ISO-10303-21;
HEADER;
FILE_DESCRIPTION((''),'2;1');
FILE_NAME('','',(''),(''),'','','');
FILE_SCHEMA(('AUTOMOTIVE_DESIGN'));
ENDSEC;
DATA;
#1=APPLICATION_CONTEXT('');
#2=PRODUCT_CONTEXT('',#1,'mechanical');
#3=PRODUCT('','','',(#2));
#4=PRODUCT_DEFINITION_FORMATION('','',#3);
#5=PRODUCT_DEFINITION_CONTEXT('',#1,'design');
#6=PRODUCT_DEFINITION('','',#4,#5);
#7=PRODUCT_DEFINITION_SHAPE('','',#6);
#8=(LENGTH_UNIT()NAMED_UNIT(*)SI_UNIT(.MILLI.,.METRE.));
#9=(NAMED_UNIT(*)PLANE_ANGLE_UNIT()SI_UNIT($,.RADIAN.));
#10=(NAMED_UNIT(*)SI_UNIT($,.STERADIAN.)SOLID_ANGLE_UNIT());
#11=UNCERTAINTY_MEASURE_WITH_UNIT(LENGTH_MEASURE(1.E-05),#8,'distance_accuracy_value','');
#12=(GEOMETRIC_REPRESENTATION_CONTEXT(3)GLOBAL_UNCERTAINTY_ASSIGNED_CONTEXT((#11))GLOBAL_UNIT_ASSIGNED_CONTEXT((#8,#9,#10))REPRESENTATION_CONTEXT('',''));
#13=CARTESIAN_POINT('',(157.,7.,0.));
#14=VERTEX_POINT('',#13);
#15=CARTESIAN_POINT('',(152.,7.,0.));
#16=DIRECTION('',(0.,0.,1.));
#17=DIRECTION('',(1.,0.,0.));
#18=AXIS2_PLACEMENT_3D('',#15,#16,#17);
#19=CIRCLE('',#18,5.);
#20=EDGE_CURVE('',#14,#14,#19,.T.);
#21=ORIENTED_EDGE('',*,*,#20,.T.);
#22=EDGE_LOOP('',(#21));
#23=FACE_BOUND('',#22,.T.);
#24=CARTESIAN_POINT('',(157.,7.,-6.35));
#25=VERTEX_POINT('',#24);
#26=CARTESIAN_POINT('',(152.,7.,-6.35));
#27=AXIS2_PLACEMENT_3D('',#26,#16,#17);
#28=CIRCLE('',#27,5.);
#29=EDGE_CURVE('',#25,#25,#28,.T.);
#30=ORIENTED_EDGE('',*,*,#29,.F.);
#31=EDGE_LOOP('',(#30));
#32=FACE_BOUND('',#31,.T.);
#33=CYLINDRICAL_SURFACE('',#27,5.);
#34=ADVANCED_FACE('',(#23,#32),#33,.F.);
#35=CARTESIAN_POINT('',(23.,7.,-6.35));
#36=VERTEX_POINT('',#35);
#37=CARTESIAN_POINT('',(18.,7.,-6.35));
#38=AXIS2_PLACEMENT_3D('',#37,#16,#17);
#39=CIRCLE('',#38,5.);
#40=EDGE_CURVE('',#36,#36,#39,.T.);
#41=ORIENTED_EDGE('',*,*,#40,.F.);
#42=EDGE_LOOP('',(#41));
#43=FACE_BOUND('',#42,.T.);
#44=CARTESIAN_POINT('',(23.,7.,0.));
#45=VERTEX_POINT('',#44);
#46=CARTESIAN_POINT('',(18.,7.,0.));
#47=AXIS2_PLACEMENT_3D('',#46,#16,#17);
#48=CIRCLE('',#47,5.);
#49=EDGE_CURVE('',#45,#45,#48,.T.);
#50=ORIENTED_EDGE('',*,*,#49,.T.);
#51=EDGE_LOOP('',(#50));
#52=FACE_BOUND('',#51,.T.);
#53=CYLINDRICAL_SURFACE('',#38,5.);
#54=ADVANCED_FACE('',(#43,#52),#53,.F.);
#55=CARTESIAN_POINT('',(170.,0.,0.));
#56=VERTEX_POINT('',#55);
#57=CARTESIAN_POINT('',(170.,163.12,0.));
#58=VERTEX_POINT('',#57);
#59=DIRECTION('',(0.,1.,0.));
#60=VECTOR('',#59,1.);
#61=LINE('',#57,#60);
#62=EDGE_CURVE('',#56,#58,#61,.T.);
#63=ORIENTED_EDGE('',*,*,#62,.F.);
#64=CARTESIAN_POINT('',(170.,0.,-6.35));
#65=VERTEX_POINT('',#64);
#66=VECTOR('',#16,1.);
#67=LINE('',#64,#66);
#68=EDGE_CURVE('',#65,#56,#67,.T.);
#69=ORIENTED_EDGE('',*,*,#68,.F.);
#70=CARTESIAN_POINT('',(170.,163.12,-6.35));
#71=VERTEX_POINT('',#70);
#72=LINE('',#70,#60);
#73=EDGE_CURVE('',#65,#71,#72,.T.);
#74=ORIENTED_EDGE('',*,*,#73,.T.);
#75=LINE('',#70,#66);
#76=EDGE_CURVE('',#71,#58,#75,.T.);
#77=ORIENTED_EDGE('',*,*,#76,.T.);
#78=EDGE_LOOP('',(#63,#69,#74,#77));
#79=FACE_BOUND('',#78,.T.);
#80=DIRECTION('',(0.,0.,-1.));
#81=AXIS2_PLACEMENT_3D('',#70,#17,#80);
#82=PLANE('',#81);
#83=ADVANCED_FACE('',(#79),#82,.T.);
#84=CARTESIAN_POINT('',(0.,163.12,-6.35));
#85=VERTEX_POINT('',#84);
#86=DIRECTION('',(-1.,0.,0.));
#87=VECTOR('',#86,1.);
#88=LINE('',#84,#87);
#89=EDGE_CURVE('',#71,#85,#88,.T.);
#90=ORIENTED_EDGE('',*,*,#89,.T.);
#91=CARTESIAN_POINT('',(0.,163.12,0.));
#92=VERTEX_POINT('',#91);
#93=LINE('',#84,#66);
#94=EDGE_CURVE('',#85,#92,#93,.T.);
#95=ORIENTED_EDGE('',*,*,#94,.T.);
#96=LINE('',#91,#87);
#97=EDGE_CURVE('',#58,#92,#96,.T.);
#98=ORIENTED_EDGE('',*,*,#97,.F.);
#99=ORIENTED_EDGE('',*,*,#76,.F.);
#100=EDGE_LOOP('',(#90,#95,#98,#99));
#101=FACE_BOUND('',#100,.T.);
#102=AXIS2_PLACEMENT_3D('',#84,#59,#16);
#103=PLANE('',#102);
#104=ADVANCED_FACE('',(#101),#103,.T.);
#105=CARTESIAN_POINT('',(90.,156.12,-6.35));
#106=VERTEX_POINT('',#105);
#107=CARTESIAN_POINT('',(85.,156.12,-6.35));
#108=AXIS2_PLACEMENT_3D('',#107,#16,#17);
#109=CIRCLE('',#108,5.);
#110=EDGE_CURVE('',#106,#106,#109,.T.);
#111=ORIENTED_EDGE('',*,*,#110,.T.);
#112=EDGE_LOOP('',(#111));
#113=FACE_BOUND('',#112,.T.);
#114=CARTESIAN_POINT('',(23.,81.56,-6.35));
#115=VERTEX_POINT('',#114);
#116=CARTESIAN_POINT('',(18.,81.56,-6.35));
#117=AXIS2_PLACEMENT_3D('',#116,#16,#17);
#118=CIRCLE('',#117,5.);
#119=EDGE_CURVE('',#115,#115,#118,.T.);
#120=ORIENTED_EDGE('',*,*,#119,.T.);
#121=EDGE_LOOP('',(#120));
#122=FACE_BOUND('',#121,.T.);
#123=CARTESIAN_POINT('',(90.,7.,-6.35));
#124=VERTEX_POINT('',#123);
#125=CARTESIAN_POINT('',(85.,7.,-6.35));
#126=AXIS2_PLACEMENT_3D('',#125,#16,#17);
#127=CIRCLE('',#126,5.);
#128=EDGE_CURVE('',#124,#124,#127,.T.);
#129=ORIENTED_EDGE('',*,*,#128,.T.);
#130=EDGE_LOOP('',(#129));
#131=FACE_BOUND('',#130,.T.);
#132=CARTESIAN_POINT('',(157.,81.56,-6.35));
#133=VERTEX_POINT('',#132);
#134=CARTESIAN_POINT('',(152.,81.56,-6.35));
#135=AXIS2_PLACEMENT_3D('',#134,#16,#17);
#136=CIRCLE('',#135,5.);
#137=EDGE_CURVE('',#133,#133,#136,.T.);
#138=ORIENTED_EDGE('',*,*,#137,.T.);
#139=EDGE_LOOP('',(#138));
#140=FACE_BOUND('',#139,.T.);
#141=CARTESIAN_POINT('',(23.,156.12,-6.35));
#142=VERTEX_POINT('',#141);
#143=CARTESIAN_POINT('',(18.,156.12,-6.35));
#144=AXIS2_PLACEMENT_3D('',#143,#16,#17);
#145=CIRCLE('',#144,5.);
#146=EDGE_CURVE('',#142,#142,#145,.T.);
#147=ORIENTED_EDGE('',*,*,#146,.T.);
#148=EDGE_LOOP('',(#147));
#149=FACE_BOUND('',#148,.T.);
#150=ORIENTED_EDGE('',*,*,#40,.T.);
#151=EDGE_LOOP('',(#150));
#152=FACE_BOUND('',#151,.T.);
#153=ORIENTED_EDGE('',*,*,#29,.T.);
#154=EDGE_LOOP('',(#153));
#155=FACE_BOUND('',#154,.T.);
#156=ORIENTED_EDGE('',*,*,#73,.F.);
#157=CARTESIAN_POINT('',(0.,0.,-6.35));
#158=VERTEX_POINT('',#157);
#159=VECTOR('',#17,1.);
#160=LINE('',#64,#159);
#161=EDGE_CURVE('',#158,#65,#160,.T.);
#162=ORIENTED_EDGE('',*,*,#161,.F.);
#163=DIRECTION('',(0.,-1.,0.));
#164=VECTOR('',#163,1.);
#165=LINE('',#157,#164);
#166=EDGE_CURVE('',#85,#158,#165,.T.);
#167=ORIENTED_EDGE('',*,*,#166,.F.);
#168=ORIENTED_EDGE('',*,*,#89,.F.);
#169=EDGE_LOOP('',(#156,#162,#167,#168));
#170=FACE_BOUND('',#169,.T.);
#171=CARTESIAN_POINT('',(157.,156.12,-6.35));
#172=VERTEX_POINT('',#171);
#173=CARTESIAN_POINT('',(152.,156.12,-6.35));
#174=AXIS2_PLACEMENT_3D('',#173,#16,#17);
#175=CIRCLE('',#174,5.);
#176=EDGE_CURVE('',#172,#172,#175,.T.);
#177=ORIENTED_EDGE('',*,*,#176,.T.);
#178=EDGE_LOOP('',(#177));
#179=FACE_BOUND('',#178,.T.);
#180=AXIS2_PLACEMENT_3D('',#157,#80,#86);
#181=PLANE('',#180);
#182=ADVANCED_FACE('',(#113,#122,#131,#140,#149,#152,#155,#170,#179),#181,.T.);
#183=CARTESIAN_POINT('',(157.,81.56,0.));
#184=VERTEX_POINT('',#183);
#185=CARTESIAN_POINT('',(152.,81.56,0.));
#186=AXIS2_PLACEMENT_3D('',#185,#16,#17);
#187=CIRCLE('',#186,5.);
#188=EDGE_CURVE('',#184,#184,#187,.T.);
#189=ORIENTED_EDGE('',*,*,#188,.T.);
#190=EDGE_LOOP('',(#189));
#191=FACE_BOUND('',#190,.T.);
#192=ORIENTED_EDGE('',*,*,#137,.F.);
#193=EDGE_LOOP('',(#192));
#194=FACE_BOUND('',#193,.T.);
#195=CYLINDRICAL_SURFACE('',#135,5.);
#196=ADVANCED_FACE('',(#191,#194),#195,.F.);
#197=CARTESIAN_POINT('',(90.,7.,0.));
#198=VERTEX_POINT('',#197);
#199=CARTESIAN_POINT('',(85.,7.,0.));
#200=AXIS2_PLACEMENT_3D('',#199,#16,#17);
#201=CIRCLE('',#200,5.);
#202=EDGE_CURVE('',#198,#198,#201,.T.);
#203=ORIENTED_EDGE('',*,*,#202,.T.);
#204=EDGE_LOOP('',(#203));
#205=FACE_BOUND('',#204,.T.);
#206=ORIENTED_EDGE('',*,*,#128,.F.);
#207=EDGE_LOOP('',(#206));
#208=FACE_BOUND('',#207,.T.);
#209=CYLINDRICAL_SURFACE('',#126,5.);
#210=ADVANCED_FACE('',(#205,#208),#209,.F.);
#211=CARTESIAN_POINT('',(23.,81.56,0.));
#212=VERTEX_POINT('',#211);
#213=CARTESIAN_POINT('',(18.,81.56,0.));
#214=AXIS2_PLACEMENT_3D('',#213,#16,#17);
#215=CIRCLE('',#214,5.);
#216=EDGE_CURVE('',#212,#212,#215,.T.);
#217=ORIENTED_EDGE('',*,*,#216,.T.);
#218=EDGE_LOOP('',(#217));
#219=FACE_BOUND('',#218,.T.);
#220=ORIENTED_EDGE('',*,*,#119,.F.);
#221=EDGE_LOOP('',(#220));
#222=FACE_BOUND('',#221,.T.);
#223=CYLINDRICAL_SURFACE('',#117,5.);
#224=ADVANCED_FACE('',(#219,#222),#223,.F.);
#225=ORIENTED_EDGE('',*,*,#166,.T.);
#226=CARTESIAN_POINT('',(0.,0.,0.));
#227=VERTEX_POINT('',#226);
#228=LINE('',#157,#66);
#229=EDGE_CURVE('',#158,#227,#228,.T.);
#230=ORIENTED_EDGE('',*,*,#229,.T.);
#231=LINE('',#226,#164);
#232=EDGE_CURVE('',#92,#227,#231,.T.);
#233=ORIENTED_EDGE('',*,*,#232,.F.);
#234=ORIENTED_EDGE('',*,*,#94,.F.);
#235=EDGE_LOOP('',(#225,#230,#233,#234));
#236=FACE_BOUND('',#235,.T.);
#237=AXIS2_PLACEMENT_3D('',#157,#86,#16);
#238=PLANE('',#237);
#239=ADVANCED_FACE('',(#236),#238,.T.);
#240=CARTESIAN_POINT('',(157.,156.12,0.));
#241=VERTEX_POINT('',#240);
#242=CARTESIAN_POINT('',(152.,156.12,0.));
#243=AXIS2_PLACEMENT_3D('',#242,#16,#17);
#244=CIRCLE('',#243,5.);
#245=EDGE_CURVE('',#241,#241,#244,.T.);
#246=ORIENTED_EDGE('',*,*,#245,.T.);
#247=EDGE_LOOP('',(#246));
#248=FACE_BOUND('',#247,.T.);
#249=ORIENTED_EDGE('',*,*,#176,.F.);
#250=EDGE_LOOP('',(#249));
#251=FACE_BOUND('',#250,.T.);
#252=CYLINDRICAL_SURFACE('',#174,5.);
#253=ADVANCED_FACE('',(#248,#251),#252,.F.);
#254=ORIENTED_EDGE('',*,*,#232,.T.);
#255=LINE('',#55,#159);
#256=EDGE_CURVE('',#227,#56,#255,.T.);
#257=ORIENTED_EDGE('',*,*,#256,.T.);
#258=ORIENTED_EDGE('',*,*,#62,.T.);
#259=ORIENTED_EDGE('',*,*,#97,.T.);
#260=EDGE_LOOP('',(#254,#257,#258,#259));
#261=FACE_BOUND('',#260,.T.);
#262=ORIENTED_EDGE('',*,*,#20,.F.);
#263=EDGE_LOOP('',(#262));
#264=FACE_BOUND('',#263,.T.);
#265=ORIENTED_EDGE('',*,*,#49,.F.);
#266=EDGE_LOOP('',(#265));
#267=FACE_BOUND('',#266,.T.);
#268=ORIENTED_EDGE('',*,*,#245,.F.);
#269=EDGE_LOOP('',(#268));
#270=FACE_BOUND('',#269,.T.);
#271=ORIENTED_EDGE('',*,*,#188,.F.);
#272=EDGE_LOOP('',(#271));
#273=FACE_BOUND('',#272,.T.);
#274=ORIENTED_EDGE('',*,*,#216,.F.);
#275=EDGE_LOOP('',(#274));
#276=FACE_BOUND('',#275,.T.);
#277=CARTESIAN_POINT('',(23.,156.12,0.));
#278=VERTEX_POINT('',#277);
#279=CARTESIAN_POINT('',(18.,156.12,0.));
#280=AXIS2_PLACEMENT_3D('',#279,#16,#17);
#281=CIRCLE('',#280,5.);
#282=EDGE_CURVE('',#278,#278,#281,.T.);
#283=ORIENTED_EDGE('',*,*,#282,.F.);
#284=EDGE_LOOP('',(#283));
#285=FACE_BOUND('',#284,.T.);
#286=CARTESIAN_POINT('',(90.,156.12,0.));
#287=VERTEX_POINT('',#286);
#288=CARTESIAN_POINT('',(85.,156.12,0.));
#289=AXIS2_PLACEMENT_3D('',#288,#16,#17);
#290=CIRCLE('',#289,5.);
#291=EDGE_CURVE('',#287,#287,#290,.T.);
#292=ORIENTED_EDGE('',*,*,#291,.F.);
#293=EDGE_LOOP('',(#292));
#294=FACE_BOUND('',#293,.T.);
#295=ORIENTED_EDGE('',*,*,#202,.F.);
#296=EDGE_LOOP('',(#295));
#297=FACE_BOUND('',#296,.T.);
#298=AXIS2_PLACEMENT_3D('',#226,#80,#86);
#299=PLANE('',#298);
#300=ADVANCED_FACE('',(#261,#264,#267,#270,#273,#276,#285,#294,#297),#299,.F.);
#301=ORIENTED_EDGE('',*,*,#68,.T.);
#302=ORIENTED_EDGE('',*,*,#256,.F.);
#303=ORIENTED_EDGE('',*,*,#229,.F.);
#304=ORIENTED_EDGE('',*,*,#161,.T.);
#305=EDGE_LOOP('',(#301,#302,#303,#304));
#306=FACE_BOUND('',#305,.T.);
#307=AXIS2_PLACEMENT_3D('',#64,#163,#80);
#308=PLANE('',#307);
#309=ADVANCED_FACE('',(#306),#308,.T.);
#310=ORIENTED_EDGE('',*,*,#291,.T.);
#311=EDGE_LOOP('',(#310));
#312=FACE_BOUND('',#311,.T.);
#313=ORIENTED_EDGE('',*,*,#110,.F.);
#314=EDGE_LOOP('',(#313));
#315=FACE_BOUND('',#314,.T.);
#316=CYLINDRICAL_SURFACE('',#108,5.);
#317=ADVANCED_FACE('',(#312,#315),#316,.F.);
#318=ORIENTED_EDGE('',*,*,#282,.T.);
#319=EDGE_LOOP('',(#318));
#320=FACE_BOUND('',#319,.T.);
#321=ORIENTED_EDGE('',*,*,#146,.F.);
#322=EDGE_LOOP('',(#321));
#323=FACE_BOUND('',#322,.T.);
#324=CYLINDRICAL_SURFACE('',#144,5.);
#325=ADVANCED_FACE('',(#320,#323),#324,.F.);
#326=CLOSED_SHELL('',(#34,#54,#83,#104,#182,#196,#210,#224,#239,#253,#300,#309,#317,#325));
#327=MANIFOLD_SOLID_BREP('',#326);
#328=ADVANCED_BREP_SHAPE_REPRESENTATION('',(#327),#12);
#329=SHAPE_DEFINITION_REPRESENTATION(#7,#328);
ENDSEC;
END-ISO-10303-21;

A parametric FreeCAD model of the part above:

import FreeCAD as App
import Part
import Sketcher
from FreeCAD import Vector
Q = App.Units.Quantity


def add_polygon(sketch, points):
    """Adds a closed chain of lines whose ends are joined by coincident constraints."""
    first, n = sketch.GeometryCount, len(points)
    for a, b in zip(points, points[1:] + points[:1]):
        sketch.addGeometry(Part.LineSegment(App.Vector(*a, 0), App.Vector(*b, 0)), False)
    for i in range(n):
        sketch.addConstraint(Sketcher.Constraint("Coincident", first + i, 2, first + (i + 1) % n, 1))

doc = App.newDocument("Part")
body = doc.addObject("PartDesign::Body", "Body")

sketch1 = body.newObject("Sketcher::SketchObject", "Sketch")
sketch1.AttachmentSupport = (doc.getObject("XY_Plane"), [""])
sketch1.MapMode = "FlatFace"
add_polygon(sketch1, [(0, 163), (0, 0), (170, 0), (170, 163)])
sketch1.addGeometry(Part.Circle(Vector(18, 7, 0), Vector(0, 0, 1), 5), False)
sketch1.addGeometry(Part.Circle(Vector(85, 7, 0), Vector(0, 0, 1), 5), False)
sketch1.addGeometry(Part.Circle(Vector(152, 7, 0), Vector(0, 0, 1), 5), False)
sketch1.addGeometry(Part.Circle(Vector(18, 82, 0), Vector(0, 0, 1), 5), False)
sketch1.addGeometry(Part.Circle(Vector(18, 156, 0), Vector(0, 0, 1), 5), False)
sketch1.addGeometry(Part.Circle(Vector(152, 82, 0), Vector(0, 0, 1), 5), False)
sketch1.addGeometry(Part.Circle(Vector(85, 156, 0), Vector(0, 0, 1), 5), False)
sketch1.addGeometry(Part.Circle(Vector(152, 156, 0), Vector(0, 0, 1), 5), False)
sketch1.addConstraint(Sketcher.Constraint("Vertical", 0))
sketch1.addConstraint(Sketcher.Constraint("Horizontal", 1))
sketch1.addConstraint(Sketcher.Constraint("Vertical", 2))
sketch1.addConstraint(Sketcher.Constraint("Horizontal", 3))
sketch1.addConstraint(Sketcher.Constraint("Coincident", 0, 2, -1, 1))
sketch1.addConstraint(Sketcher.Constraint("Equal", 4, 5))
sketch1.addConstraint(Sketcher.Constraint("Equal", 5, 6))
sketch1.addConstraint(Sketcher.Constraint("Equal", 6, 7))
sketch1.addConstraint(Sketcher.Constraint("Equal", 7, 8))
sketch1.addConstraint(Sketcher.Constraint("Equal", 8, 9))
sketch1.addConstraint(Sketcher.Constraint("Equal", 9, 10))
sketch1.addConstraint(Sketcher.Constraint("Equal", 10, 11))
sketch1.addConstraint(Sketcher.Constraint("Horizontal", 4, 3, 5, 3))
sketch1.addConstraint(Sketcher.Constraint("Horizontal", 5, 3, 6, 3))
sketch1.addConstraint(Sketcher.Constraint("Horizontal", 7, 3, 9, 3))
sketch1.addConstraint(Sketcher.Constraint("Horizontal", 8, 3, 10, 3))
sketch1.addConstraint(Sketcher.Constraint("Horizontal", 10, 3, 11, 3))
sketch1.addConstraint(Sketcher.Constraint("Vertical", 4, 3, 7, 3))
sketch1.addConstraint(Sketcher.Constraint("Vertical", 7, 3, 8, 3))
sketch1.addConstraint(Sketcher.Constraint("Vertical", 6, 3, 9, 3))
sketch1.addConstraint(Sketcher.Constraint("Vertical", 5, 3, 10, 3))
sketch1.addConstraint(Sketcher.Constraint("Vertical", 9, 3, 11, 3))
sketch1.addConstraint(Sketcher.Constraint("Diameter", 4, Q("10 mm")))
sketch1.addConstraint(Sketcher.Constraint("DistanceX", 1, 1, 1, 2, Q("170 mm")))
sketch1.addConstraint(Sketcher.Constraint("DistanceX", -1, 1, 4, 3, Q("18 mm")))
sketch1.addConstraint(Sketcher.Constraint("DistanceY", -1, 1, 4, 3, Q("7 mm")))
sketch1.addConstraint(Sketcher.Constraint("DistanceX", -1, 1, 5, 3, Q("85 mm")))
sketch1.addConstraint(Sketcher.Constraint("DistanceX", -1, 1, 6, 3, Q("152 mm")))
sketch1.addConstraint(Sketcher.Constraint("DistanceY", 11, 3, 2, 2, Q("7 mm")))
sketch1.addConstraint(Sketcher.Constraint("DistanceY", 0, 2, 0, 1, Q("163.12 mm")))
sketch1.addConstraint(Sketcher.Constraint("DistanceY", -1, 1, 7, 3, Q("81.56 mm")))
pad1 = body.newObject("PartDesign::Pad", "Pad")
pad1.Profile = sketch1
pad1.Length = 6.35
pad1.Reversed = True

doc.recompute()
